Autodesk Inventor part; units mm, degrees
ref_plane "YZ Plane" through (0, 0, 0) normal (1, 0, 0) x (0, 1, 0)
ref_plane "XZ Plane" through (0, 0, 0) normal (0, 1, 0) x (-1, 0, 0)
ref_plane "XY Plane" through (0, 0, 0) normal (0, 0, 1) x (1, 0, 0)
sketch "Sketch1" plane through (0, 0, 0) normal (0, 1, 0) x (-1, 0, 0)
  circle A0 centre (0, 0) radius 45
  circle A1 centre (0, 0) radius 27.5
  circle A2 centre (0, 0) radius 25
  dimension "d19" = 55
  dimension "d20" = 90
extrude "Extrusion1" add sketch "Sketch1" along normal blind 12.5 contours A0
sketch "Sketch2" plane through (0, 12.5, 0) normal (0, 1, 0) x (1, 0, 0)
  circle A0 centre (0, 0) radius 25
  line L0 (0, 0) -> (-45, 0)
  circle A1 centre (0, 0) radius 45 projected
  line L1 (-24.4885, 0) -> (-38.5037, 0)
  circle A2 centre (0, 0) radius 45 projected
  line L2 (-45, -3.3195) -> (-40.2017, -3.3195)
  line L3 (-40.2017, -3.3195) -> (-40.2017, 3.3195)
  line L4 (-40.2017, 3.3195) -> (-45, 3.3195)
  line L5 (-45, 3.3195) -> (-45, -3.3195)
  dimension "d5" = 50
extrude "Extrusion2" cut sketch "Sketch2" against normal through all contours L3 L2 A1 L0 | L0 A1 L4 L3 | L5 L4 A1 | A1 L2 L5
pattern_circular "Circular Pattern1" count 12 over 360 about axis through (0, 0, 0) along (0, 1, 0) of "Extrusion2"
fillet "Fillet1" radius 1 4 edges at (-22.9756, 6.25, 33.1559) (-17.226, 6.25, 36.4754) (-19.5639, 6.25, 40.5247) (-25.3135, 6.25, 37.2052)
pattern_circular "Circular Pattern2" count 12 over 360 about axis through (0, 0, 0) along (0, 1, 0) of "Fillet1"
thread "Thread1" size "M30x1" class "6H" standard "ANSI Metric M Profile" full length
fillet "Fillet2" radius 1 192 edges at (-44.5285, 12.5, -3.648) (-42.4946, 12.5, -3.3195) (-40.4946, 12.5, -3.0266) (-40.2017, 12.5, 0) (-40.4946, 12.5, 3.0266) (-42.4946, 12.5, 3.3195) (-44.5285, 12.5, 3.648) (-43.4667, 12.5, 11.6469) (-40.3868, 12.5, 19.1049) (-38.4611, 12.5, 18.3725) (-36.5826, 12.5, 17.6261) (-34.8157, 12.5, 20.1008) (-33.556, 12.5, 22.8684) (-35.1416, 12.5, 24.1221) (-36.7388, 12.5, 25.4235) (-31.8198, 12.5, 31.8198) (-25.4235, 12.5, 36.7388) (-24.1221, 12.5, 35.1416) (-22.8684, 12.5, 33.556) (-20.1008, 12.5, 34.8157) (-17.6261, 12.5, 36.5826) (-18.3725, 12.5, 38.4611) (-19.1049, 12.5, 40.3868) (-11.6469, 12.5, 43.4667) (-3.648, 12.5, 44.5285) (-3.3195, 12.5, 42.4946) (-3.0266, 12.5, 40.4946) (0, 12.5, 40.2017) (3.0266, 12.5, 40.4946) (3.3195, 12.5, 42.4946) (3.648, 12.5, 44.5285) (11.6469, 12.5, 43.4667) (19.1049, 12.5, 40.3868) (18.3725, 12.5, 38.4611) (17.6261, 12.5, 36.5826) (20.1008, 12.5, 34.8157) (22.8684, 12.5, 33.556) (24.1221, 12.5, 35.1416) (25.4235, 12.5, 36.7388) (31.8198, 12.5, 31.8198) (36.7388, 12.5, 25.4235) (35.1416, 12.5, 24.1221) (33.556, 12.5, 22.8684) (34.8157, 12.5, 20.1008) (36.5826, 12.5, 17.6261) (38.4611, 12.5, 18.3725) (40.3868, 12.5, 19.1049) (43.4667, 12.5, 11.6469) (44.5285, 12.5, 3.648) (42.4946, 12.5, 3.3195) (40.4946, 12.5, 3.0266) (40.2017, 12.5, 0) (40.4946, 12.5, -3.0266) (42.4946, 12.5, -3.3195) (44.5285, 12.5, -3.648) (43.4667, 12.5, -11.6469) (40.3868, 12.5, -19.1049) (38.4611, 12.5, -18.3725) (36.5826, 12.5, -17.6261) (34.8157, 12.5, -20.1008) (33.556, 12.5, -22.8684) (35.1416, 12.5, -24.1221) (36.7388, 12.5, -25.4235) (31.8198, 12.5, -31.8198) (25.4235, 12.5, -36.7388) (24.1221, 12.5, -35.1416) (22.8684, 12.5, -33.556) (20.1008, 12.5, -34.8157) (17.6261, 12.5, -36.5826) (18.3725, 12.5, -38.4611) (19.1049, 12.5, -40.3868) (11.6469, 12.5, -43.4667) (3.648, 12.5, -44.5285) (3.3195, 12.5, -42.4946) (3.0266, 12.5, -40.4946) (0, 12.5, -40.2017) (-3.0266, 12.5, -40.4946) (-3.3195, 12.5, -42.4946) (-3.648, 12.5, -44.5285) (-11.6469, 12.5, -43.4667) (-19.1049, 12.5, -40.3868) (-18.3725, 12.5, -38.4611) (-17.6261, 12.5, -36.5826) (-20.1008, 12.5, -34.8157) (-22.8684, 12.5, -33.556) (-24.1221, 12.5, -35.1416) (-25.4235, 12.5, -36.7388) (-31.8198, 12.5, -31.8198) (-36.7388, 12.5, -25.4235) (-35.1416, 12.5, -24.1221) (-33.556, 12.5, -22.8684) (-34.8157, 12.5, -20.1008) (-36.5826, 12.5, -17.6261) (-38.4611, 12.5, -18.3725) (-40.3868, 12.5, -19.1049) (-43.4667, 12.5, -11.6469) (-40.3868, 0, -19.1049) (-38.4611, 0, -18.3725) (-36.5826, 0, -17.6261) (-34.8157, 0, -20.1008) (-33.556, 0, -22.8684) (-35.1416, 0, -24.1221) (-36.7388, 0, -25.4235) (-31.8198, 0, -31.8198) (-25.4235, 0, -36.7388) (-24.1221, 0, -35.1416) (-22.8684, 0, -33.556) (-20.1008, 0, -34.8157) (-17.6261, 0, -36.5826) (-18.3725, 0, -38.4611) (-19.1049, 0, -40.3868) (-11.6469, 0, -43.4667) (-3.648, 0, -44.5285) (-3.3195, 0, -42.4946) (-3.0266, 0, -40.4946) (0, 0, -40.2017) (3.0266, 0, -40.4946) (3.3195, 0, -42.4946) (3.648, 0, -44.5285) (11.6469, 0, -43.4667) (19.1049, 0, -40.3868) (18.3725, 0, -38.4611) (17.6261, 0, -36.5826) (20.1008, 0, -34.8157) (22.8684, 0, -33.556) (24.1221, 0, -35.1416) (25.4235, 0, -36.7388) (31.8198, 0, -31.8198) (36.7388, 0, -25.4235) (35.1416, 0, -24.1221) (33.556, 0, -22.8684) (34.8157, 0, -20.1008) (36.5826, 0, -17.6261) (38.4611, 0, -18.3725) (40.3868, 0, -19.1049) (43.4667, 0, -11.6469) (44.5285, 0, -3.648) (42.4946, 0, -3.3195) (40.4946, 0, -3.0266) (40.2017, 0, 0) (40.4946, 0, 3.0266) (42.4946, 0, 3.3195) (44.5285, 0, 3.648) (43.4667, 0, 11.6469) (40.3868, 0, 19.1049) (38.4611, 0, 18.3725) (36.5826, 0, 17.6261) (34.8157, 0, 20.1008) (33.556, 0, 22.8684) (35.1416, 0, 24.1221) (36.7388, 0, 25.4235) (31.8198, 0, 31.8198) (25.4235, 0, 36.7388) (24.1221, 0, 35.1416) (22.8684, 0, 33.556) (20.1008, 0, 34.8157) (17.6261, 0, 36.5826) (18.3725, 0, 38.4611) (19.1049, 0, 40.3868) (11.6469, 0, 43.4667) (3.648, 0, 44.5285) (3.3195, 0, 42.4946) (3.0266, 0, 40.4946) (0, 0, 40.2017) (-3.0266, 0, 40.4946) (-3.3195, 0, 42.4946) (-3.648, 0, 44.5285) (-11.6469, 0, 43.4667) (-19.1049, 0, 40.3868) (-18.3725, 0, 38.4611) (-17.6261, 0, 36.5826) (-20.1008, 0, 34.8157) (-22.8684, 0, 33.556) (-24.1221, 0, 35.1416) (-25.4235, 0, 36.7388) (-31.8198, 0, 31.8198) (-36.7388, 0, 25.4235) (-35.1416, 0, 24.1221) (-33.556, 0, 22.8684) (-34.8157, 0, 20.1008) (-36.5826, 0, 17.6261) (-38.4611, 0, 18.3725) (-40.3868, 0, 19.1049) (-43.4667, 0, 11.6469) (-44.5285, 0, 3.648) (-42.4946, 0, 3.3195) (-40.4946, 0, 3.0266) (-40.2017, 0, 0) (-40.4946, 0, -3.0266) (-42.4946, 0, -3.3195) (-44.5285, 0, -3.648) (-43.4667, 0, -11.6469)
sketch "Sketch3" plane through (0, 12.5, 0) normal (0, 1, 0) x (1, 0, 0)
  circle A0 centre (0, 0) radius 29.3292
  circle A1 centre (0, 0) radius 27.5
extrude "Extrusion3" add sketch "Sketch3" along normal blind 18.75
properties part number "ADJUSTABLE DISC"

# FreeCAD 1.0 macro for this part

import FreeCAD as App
import Part
import Sketcher
from FreeCAD import Vector
Q = App.Units.Quantity


def edges_at(feature, points):
    """Names of the edges that pass closest to the given points."""
    edges = feature.Shape.Edges
    near = lambda p: min(range(len(edges)), key=lambda i: edges[i].distToShape(Part.Vertex(*p))[0])
    return sorted({f"Edge{near(p) + 1}" for p in points})


def add_polygon(sketch, points):
    """Adds a closed chain of lines whose ends are joined by coincident constraints."""
    first, n = sketch.GeometryCount, len(points)
    for a, b in zip(points, points[1:] + points[:1]):
        sketch.addGeometry(Part.LineSegment(App.Vector(*a, 0), App.Vector(*b, 0)), False)
    for i in range(n):
        sketch.addConstraint(Sketcher.Constraint("Coincident", first + i, 2, first + (i + 1) % n, 1))

doc = App.newDocument("Part")
body = doc.addObject("PartDesign::Body", "Body")

# Sketch on XZ plane
sketch1 = doc.addObject("Sketcher::SketchObject", "Sketch")
body.addObject(sketch1)
sketch1.AttachmentSupport = (doc.XZ_Plane, [""])
sketch1.MapMode = "FlatFace"
sketch1.addGeometry([
    Part.Circle(Vector(0, 0, 0), Vector(0, 0, 1), 45),
    Part.Circle(Vector(0, 0, 0), Vector(0, 0, 1), 28),
], False)
sketch1.addConstraint([
    Sketcher.Constraint("Coincident", 0, 3, -1, 1),
    Sketcher.Constraint("Coincident", 1, 3, -1, 1),
    Sketcher.Constraint("Diameter", 0, Q("90 mm")),
    Sketcher.Constraint("Diameter", 1, Q("55 mm")),
])
pad1 = doc.addObject("PartDesign::Pad", "Pad")
body.addObject(pad1)
pad1.Profile = sketch1
pad1.Length = 12.5
pad1.Reversed = True

# Sketch on XZ plane
sketch2 = doc.addObject("Sketcher::SketchObject", "Sketch001")
body.addObject(sketch2)
sketch2.AttachmentSupport = (doc.XZ_Plane, [""])
sketch2.MapMode = "FlatFace"
sketch2.AttachmentOffset = App.Placement(Vector(0, 0, -12.5), App.Rotation())
add_polygon(sketch2, [(-40.2, 3.3), (-40.2, -3.3), (-45, -3.3), (-45, 3.3)])  # lines 0-3
sketch2.addConstraint([
    Sketcher.Constraint("Vertical", 0),
    Sketcher.Constraint("Horizontal", 1),
    Sketcher.Constraint("Vertical", 2),
    Sketcher.Constraint("Horizontal", 3),
    Sketcher.Constraint("DistanceX", 1, 2, -1, 1, Q("45 mm")),
    Sketcher.Constraint("DistanceY", 0, 2, 0, 1, Q("6.639 mm")),
    Sketcher.Constraint("DistanceX", 1, 2, 1, 1, Q("4.7983 mm")),
    Sketcher.Constraint("DistanceY", 0, 2, -1, 1, Q("3.3195 mm")),
])
pocket1 = doc.addObject("PartDesign::Pocket", "Pocket")
body.addObject(pocket1)
pocket1.Profile = sketch2
pocket1.Type = "ThroughAll"
pocket1.Reversed = True
doc.recompute()

polarpattern = doc.addObject("PartDesign::PolarPattern", "PolarPattern")
body.addObject(polarpattern)
polarpattern.Originals = [pocket1]
polarpattern.Axis = (doc.Y_Axis, [""])
polarpattern.Angle = 360
polarpattern.Occurrences = 12
body.Tip = polarpattern
doc.recompute()

fillet = doc.addObject("PartDesign::Fillet", "Fillet")
body.addObject(fillet)
fillet.Base = (polarpattern, edges_at(polarpattern, [
    (-22.976, 6.25, 33.156),
    (-17.226, 6.25, 36.475),
    (-19.564, 6.25, 40.525),
    (-25.314, 6.25, 37.205),
]))
fillet.Radius = 1
doc.recompute()

polarpattern2 = doc.addObject("PartDesign::PolarPattern", "PolarPattern001")
body.addObject(polarpattern2)
polarpattern2.Originals = [fillet]
polarpattern2.Axis = (doc.Y_Axis, [""])
polarpattern2.Angle = 360
polarpattern2.Occurrences = 12
body.Tip = polarpattern2
doc.recompute()

fillet2 = doc.addObject("PartDesign::Fillet", "Fillet001")
body.addObject(fillet2)
fillet2.Base = (polarpattern2, edges_at(polarpattern2, [
    (-44.529, 12.5, -3.648),
    (-42.495, 12.5, -3.32),
    (-40.495, 12.5, -3.027),
    (-40.202, 12.5, 0),
    (-40.495, 12.5, 3.027),
    (-42.495, 12.5, 3.32),
    (-44.529, 12.5, 3.648),
    (-43.467, 12.5, 11.647),
    (-40.387, 12.5, 19.105),
    (-38.461, 12.5, 18.372),
    (-36.583, 12.5, 17.626),
    (-34.816, 12.5, 20.101),
    (-33.556, 12.5, 22.868),
    (-35.142, 12.5, 24.122),
    (-36.739, 12.5, 25.424),
    (-31.82, 12.5, 31.82),
    (-25.424, 12.5, 36.739),
    (-24.122, 12.5, 35.142),
    (-22.868, 12.5, 33.556),
    (-20.101, 12.5, 34.816),
    (-17.626, 12.5, 36.583),
    (-18.372, 12.5, 38.461),
    (-19.105, 12.5, 40.387),
    (-11.647, 12.5, 43.467),
    (-3.648, 12.5, 44.529),
    (-3.32, 12.5, 42.495),
    (-3.027, 12.5, 40.495),
    (0, 12.5, 40.202),
    (3.027, 12.5, 40.495),
    (3.32, 12.5, 42.495),
    (3.648, 12.5, 44.529),
    (11.647, 12.5, 43.467),
    (19.105, 12.5, 40.387),
    (18.372, 12.5, 38.461),
    (17.626, 12.5, 36.583),
    (20.101, 12.5, 34.816),
    (22.868, 12.5, 33.556),
    (24.122, 12.5, 35.142),
    (25.424, 12.5, 36.739),
    (31.82, 12.5, 31.82),
    (36.739, 12.5, 25.424),
    (35.142, 12.5, 24.122),
    (33.556, 12.5, 22.868),
    (34.816, 12.5, 20.101),
    (36.583, 12.5, 17.626),
    (38.461, 12.5, 18.372),
    (40.387, 12.5, 19.105),
    (43.467, 12.5, 11.647),
    (44.529, 12.5, 3.648),
    (42.495, 12.5, 3.32),
    (40.495, 12.5, 3.027),
    (40.202, 12.5, 0),
    (40.495, 12.5, -3.027),
    (42.495, 12.5, -3.32),
    (44.529, 12.5, -3.648),
    (43.467, 12.5, -11.647),
    (40.387, 12.5, -19.105),
    (38.461, 12.5, -18.372),
    (36.583, 12.5, -17.626),
    (34.816, 12.5, -20.101),
    (33.556, 12.5, -22.868),
    (35.142, 12.5, -24.122),
    (36.739, 12.5, -25.424),
    (31.82, 12.5, -31.82),
    (25.424, 12.5, -36.739),
    (24.122, 12.5, -35.142),
    (22.868, 12.5, -33.556),
    (20.101, 12.5, -34.816),
    (17.626, 12.5, -36.583),
    (18.372, 12.5, -38.461),
    (19.105, 12.5, -40.387),
    (11.647, 12.5, -43.467),
    (3.648, 12.5, -44.529),
    (3.32, 12.5, -42.495),
    (3.027, 12.5, -40.495),
    (0, 12.5, -40.202),
    (-3.027, 12.5, -40.495),
    (-3.32, 12.5, -42.495),
    (-3.648, 12.5, -44.529),
    (-11.647, 12.5, -43.467),
    (-19.105, 12.5, -40.387),
    (-18.372, 12.5, -38.461),
    (-17.626, 12.5, -36.583),
    (-20.101, 12.5, -34.816),
    (-22.868, 12.5, -33.556),
    (-24.122, 12.5, -35.142),
    (-25.424, 12.5, -36.739),
    (-31.82, 12.5, -31.82),
    (-36.739, 12.5, -25.424),
    (-35.142, 12.5, -24.122),
    (-33.556, 12.5, -22.868),
    (-34.816, 12.5, -20.101),
    (-36.583, 12.5, -17.626),
    (-38.461, 12.5, -18.372),
    (-40.387, 12.5, -19.105),
    (-43.467, 12.5, -11.647),
    (-40.387, 0, -19.105),
    (-38.461, 0, -18.372),
    (-36.583, 0, -17.626),
    (-34.816, 0, -20.101),
    (-33.556, 0, -22.868),
    (-35.142, 0, -24.122),
    (-36.739, 0, -25.424),
    (-31.82, 0, -31.82),
    (-25.424, 0, -36.739),
    (-24.122, 0, -35.142),
    (-22.868, 0, -33.556),
    (-20.101, 0, -34.816),
    (-17.626, 0, -36.583),
    (-18.372, 0, -38.461),
    (-19.105, 0, -40.387),
    (-11.647, 0, -43.467),
    (-3.648, 0, -44.529),
    (-3.32, 0, -42.495),
    (-3.027, 0, -40.495),
    (0, 0, -40.202),
    (3.027, 0, -40.495),
    (3.32, 0, -42.495),
    (3.648, 0, -44.529),
    (11.647, 0, -43.467),
    (19.105, 0, -40.387),
    (18.372, 0, -38.461),
    (17.626, 0, -36.583),
    (20.101, 0, -34.816),
    (22.868, 0, -33.556),
    (24.122, 0, -35.142),
    (25.424, 0, -36.739),
    (31.82, 0, -31.82),
    (36.739, 0, -25.424),
    (35.142, 0, -24.122),
    (33.556, 0, -22.868),
    (34.816, 0, -20.101),
    (36.583, 0, -17.626),
    (38.461, 0, -18.372),
    (40.387, 0, -19.105),
    (43.467, 0, -11.647),
    (44.529, 0, -3.648),
    (42.495, 0, -3.32),
    (40.495, 0, -3.027),
    (40.202, 0, 0),
    (40.495, 0, 3.027),
    (42.495, 0, 3.32),
    (44.529, 0, 3.648),
    (43.467, 0, 11.647),
    (40.387, 0, 19.105),
    (38.461, 0, 18.372),
    (36.583, 0, 17.626),
    (34.816, 0, 20.101),
    (33.556, 0, 22.868),
    (35.142, 0, 24.122),
    (36.739, 0, 25.424),
    (31.82, 0, 31.82),
    (25.424, 0, 36.739),
    (24.122, 0, 35.142),
    (22.868, 0, 33.556),
    (20.101, 0, 34.816),
    (17.626, 0, 36.583),
    (18.372, 0, 38.461),
    (19.105, 0, 40.387),
    (11.647, 0, 43.467),
    (3.648, 0, 44.529),
    (3.32, 0, 42.495),
    (3.027, 0, 40.495),
    (0, 0, 40.202),
    (-3.027, 0, 40.495),
    (-3.32, 0, 42.495),
    (-3.648, 0, 44.529),
    (-11.647, 0, 43.467),
    (-19.105, 0, 40.387),
    (-18.372, 0, 38.461),
    (-17.626, 0, 36.583),
    (-20.101, 0, 34.816),
    (-22.868, 0, 33.556),
    (-24.122, 0, 35.142),
    (-25.424, 0, 36.739),
    (-31.82, 0, 31.82),
    (-36.739, 0, 25.424),
    (-35.142, 0, 24.122),
    (-33.556, 0, 22.868),
    (-34.816, 0, 20.101),
    (-36.583, 0, 17.626),
    (-38.461, 0, 18.372),
    (-40.387, 0, 19.105),
    (-43.467, 0, 11.647),
    (-44.529, 0, 3.648),
    (-42.495, 0, 3.32),
    (-40.495, 0, 3.027),
    (-40.202, 0, 0),
    (-40.495, 0, -3.027),
    (-42.495, 0, -3.32),
    (-44.529, 0, -3.648),
    (-43.467, 0, -11.647),
]))
fillet2.Radius = 1

# Sketch on XZ plane
sketch3 = doc.addObject("Sketcher::SketchObject", "Sketch002")
body.addObject(sketch3)
sketch3.AttachmentSupport = (doc.XZ_Plane, [""])
sketch3.MapMode = "FlatFace"
sketch3.AttachmentOffset = App.Placement(Vector(0, 0, -12.5), App.Rotation())
sketch3.addGeometry([
    Part.Circle(Vector(0, 0, 0), Vector(0, 0, 1), 29),
    Part.Circle(Vector(0, 0, 0), Vector(0, 0, 1), 28),
], False)
sketch3.addConstraint([
    Sketcher.Constraint("Coincident", 0, 3, -1, 1),
    Sketcher.Constraint("Coincident", 1, 3, -1, 1),
    Sketcher.Constraint("Diameter", 1, Q("55 mm")),
    Sketcher.Constraint("Diameter", 0, Q("58.6584 mm")),
])
pad2 = doc.addObject("PartDesign::Pad", "Pad001")
body.addObject(pad2)
pad2.Profile = sketch3
pad2.Length = 18.75
pad2.Reversed = True

doc.recompute()
